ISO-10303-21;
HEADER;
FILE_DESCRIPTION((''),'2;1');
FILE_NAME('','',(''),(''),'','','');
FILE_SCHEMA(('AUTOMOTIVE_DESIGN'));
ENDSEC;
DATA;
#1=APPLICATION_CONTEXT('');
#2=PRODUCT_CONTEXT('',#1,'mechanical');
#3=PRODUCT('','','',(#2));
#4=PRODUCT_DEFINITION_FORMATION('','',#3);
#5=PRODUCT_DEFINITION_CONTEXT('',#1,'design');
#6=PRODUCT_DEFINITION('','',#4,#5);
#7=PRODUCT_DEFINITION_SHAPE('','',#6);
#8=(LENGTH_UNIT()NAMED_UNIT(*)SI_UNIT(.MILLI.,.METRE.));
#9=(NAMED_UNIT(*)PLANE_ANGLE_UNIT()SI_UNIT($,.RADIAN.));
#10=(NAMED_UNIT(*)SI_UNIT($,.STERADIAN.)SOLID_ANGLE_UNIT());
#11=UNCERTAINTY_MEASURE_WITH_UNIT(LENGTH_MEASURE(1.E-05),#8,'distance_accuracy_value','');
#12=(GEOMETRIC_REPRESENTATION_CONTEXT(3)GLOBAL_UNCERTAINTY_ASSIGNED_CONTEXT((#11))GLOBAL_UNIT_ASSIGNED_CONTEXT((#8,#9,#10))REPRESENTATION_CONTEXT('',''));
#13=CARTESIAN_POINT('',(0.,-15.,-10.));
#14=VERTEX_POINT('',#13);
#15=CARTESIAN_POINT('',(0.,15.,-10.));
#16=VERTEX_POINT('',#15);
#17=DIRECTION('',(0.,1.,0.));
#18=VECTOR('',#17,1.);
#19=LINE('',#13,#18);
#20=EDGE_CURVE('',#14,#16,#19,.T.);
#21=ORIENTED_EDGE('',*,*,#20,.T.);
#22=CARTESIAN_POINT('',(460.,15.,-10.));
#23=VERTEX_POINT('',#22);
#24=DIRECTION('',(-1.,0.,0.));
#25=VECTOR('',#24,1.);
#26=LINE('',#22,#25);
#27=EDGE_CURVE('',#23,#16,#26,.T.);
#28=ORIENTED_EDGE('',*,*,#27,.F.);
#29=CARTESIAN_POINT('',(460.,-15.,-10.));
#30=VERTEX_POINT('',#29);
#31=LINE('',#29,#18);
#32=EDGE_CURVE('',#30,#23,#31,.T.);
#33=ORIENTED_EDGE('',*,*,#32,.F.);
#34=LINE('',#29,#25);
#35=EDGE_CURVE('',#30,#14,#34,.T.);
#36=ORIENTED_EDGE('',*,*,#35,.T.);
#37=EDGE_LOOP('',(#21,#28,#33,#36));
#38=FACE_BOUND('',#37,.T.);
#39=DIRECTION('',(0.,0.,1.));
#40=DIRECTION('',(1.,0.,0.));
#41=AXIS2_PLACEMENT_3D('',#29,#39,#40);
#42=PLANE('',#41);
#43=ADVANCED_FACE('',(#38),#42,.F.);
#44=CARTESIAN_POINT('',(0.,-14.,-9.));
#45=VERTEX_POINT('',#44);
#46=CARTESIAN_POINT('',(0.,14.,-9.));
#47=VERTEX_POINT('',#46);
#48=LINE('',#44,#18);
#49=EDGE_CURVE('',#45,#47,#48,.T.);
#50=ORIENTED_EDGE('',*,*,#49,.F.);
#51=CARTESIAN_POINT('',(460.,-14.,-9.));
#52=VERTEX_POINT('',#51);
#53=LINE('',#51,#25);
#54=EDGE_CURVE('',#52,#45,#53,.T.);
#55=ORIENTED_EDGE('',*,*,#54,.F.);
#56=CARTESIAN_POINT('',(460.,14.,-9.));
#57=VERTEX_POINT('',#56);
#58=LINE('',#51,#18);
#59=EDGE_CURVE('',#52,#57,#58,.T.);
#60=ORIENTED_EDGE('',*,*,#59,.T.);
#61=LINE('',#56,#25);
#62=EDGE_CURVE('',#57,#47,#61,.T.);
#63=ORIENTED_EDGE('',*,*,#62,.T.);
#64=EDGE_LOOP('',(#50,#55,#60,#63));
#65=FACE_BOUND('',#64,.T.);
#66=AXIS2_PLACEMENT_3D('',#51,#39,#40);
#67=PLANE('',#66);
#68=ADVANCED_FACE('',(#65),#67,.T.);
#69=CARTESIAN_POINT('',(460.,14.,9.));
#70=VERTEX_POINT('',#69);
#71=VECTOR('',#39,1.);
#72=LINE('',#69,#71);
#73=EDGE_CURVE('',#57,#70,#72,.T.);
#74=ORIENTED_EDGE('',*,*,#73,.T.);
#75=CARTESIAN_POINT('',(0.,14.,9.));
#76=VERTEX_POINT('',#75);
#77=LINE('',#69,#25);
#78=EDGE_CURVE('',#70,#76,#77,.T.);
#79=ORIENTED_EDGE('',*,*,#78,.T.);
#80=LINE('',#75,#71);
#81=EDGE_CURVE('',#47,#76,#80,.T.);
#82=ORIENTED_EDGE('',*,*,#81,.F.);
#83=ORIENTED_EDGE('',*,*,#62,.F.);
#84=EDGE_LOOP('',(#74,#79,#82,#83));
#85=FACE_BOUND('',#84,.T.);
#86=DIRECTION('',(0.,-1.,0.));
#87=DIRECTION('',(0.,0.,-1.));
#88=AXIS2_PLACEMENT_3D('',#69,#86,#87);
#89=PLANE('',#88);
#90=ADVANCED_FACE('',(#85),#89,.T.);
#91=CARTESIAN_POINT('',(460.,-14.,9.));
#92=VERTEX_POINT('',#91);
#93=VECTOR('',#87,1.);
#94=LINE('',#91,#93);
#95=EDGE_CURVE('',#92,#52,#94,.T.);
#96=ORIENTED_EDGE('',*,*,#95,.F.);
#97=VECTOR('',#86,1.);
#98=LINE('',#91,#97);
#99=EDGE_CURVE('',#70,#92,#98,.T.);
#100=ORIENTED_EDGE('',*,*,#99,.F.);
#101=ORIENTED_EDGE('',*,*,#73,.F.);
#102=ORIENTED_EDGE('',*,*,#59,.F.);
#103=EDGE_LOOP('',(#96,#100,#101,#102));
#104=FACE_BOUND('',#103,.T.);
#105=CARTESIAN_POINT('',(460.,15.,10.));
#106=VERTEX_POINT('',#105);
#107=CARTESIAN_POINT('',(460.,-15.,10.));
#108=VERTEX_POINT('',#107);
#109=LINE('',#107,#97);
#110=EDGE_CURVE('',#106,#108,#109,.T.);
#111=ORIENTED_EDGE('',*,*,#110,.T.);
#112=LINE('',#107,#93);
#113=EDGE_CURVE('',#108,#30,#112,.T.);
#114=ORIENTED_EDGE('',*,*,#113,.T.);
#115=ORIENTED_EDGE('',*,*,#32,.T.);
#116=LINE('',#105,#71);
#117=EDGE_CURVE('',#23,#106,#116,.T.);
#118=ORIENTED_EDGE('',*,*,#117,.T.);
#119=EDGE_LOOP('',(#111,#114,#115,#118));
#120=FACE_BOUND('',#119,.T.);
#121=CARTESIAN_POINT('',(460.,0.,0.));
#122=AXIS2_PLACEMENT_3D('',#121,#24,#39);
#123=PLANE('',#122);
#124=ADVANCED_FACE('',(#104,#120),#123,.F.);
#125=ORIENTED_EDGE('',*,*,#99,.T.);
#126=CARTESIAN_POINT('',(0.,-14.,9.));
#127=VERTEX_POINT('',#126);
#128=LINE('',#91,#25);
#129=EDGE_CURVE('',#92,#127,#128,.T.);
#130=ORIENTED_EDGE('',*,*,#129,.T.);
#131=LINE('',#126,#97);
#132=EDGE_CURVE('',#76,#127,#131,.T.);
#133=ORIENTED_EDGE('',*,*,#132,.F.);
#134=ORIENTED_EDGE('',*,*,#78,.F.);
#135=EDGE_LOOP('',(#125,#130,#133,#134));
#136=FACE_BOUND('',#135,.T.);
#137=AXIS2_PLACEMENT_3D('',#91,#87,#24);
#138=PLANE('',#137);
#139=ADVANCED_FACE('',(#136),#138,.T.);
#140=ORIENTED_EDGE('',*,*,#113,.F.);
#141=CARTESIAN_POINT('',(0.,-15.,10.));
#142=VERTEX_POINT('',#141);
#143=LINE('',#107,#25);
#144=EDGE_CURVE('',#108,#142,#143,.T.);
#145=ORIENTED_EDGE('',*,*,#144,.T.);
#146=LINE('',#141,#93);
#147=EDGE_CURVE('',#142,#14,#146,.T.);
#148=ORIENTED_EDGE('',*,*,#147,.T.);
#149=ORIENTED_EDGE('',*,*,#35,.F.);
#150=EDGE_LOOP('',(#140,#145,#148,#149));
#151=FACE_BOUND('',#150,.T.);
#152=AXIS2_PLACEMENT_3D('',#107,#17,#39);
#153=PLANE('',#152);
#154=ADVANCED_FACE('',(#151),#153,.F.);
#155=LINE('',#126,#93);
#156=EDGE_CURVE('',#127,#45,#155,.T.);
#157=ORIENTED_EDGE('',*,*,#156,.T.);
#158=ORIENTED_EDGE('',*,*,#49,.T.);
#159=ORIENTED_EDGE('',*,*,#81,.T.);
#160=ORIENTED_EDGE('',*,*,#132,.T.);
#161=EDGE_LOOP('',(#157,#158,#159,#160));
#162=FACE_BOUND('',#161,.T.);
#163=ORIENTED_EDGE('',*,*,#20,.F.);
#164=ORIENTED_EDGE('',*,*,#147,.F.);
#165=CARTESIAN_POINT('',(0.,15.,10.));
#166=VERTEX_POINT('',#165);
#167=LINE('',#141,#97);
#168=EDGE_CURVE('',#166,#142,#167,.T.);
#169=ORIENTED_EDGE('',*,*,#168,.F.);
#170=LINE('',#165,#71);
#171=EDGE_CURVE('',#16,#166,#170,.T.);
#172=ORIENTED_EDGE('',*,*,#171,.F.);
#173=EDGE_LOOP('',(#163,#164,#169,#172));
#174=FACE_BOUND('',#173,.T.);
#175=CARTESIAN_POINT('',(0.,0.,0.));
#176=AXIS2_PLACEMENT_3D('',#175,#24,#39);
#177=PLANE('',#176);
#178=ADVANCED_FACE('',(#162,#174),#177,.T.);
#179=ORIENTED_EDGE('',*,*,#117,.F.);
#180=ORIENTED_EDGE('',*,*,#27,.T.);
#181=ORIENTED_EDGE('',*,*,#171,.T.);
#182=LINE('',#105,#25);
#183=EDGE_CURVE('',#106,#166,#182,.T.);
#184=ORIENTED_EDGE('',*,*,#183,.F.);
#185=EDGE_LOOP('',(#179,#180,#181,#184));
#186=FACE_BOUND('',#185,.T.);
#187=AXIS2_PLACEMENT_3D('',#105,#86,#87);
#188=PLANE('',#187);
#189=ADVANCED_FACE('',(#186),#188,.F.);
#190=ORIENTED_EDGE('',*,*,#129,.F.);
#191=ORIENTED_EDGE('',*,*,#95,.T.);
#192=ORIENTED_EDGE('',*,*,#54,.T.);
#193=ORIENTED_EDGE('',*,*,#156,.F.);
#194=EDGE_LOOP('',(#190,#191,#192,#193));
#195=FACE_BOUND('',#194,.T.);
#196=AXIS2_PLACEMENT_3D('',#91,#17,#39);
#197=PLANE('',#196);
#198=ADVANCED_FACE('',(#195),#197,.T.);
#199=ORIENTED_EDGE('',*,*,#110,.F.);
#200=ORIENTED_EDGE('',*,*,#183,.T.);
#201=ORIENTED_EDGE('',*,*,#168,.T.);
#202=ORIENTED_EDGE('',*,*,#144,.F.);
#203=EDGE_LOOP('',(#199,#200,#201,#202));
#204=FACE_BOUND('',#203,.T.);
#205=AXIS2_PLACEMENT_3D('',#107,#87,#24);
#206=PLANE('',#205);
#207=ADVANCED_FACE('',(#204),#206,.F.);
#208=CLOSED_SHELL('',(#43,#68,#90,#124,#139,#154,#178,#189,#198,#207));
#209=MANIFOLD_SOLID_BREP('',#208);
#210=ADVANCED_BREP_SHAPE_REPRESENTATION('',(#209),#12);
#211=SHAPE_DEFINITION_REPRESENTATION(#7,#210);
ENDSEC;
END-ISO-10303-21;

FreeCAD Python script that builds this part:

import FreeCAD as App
import Part
import Sketcher
Q = App.Units.Quantity


def add_polygon(sketch, points):
    """Adds a closed chain of lines whose ends are joined by coincident constraints."""
    first, n = sketch.GeometryCount, len(points)
    for a, b in zip(points, points[1:] + points[:1]):
        sketch.addGeometry(Part.LineSegment(App.Vector(*a, 0), App.Vector(*b, 0)), False)
    for i in range(n):
        sketch.addConstraint(Sketcher.Constraint("Coincident", first + i, 2, first + (i + 1) % n, 1))

doc = App.newDocument("Part")
params = doc.addObject("Spreadsheet::Sheet", "Params")
for row, (alias, value) in enumerate([
    ("sketch1_width", "30 mm"),
    ("sketch1_width2", "28 mm"),
    ("sketch1_height", "20 mm"),
    ("sketch1_height2", "18 mm"),
    ("pad1_length", "460 mm"),
], start=1):
    params.set(f"A{row}", alias)
    params.set(f"B{row}", "=" + value)
    params.setAlias(f"B{row}", alias)

body = doc.addObject("PartDesign::Body", "Body")

# Sketch on YZ plane
sketch1 = body.newObject("Sketcher::SketchObject", "Sketch")
sketch1.AttachmentSupport = (doc.getObject("YZ_Plane"), [""])
sketch1.MapMode = "FlatFace"
add_polygon(sketch1, [(15, 10), (-15, 10), (-15, -10), (15, -10)])  # lines 0-3
add_polygon(sketch1, [(-14, -9), (-14, 9), (14, 9), (14, -9)])  # lines 4-7
sketch1.addConstraint([
    Sketcher.Constraint("Horizontal", 0),
    Sketcher.Constraint("Vertical", 1),
    Sketcher.Constraint("Horizontal", 2),
    Sketcher.Constraint("Vertical", 3),
    Sketcher.Constraint("Vertical", 4),
    Sketcher.Constraint("Horizontal", 5),
    Sketcher.Constraint("Vertical", 6),
    Sketcher.Constraint("Horizontal", 7),
    Sketcher.Constraint("Symmetric", 0, 2, 2, 2, -1, 1),
    Sketcher.Constraint("Symmetric", 4, 2, 6, 2, -1, 1),
    Sketcher.Constraint("DistanceX", 0, 2, 0, 1, Q("30 mm")),
    Sketcher.Constraint("DistanceX", 5, 1, 5, 2, Q("28 mm")),
    Sketcher.Constraint("DistanceY", 1, 2, 1, 1, Q("20 mm")),
    Sketcher.Constraint("DistanceY", 4, 1, 4, 2, Q("18 mm")),
])
sketch1.setExpression("Constraints[18]", "Params.sketch1_width")
sketch1.setExpression("Constraints[19]", "Params.sketch1_width2")
sketch1.setExpression("Constraints[20]", "Params.sketch1_height")
sketch1.setExpression("Constraints[21]", "Params.sketch1_height2")
pad1 = body.newObject("PartDesign::Pad", "Pad")
pad1.Profile = sketch1
pad1.setExpression("Length", "Params.pad1_length")

doc.recompute()
